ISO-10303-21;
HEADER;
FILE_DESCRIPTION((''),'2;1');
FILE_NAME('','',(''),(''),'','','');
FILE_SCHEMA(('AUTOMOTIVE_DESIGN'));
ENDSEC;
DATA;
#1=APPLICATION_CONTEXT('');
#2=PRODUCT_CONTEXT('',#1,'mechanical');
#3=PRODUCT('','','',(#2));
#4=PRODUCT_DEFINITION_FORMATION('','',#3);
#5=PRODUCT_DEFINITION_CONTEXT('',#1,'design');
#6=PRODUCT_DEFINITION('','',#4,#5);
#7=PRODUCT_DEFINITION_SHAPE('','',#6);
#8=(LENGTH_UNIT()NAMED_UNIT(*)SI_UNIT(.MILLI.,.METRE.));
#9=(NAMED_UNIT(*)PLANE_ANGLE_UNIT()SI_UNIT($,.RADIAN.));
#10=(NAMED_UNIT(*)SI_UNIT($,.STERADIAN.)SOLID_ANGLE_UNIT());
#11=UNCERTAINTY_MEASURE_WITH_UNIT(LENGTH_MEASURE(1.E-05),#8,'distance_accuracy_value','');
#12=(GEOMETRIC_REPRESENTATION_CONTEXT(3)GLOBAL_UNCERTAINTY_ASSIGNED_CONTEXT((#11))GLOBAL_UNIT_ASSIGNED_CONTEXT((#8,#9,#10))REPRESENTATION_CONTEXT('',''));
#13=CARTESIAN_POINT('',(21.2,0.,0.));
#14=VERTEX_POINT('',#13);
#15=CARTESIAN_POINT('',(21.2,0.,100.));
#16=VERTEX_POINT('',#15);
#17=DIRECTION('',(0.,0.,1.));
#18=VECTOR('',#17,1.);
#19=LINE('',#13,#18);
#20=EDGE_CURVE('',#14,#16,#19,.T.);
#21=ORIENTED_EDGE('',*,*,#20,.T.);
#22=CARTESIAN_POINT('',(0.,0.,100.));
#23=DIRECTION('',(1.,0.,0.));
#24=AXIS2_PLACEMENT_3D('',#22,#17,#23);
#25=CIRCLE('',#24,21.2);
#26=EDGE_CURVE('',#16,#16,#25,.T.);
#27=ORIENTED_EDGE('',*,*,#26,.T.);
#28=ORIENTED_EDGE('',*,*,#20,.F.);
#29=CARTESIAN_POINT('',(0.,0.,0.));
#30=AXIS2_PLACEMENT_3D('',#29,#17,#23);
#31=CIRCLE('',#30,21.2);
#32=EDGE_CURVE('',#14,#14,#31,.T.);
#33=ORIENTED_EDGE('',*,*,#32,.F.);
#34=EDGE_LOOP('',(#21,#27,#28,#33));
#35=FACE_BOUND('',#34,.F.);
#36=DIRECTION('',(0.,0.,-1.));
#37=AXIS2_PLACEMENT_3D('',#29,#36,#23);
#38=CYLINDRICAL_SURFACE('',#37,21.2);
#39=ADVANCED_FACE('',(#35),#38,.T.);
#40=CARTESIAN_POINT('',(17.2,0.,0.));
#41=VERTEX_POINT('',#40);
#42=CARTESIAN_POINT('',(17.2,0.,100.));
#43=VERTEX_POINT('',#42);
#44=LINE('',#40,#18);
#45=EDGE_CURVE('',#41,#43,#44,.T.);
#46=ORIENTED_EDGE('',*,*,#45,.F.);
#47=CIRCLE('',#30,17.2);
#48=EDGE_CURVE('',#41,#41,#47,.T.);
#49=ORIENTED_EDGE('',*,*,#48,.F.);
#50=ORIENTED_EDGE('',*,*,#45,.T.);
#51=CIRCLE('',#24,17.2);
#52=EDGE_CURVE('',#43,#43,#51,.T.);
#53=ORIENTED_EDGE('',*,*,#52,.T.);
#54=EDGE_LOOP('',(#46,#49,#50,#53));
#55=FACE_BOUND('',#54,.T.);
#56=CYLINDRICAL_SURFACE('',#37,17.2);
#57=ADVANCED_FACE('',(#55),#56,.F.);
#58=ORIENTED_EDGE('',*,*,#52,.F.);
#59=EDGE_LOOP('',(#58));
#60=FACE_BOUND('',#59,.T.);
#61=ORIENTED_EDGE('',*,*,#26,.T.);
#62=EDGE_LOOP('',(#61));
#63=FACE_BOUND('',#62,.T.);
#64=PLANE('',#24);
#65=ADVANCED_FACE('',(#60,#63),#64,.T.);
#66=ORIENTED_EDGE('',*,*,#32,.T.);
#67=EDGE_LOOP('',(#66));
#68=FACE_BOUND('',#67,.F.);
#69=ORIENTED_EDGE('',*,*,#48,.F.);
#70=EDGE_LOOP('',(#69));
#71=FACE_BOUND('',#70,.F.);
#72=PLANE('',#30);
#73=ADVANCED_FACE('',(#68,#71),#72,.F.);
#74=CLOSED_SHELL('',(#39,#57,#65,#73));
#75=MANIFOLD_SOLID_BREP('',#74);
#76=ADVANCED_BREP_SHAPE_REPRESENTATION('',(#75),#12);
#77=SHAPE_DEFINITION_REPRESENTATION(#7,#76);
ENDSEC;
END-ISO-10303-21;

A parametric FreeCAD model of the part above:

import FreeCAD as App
import Part
import Sketcher

V = App.Vector

doc = App.newDocument("Part")
body = doc.addObject("PartDesign::Body", "Body")

sketch1 = doc.addObject("Sketcher::SketchObject", "Sketch")
body.addObject(sketch1)
sketch1.AttachmentSupport = (doc.XY_Plane, [""])
sketch1.MapMode = "FlatFace"
sketch1.addGeometry(Part.Circle(V(0, 0, 0), V(0, 0, 1), 21), False)
sketch1.addGeometry(Part.Circle(V(0, 0, 0), V(0, 0, 1), 17), False)
sketch1.addConstraint(Sketcher.Constraint("Coincident", 0, 3, -1, 1))
sketch1.addConstraint(Sketcher.Constraint("Coincident", 1, 3, -1, 1))
sketch1.addConstraint(Sketcher.Constraint("Diameter", 0, 42.4))
sketch1.addConstraint(Sketcher.Constraint("Diameter", 1, 34.4))
pad1 = doc.addObject("PartDesign::Pad", "Pad")
body.addObject(pad1)
pad1.Profile = sketch1
pad1.Length = 100

doc.recompute()
